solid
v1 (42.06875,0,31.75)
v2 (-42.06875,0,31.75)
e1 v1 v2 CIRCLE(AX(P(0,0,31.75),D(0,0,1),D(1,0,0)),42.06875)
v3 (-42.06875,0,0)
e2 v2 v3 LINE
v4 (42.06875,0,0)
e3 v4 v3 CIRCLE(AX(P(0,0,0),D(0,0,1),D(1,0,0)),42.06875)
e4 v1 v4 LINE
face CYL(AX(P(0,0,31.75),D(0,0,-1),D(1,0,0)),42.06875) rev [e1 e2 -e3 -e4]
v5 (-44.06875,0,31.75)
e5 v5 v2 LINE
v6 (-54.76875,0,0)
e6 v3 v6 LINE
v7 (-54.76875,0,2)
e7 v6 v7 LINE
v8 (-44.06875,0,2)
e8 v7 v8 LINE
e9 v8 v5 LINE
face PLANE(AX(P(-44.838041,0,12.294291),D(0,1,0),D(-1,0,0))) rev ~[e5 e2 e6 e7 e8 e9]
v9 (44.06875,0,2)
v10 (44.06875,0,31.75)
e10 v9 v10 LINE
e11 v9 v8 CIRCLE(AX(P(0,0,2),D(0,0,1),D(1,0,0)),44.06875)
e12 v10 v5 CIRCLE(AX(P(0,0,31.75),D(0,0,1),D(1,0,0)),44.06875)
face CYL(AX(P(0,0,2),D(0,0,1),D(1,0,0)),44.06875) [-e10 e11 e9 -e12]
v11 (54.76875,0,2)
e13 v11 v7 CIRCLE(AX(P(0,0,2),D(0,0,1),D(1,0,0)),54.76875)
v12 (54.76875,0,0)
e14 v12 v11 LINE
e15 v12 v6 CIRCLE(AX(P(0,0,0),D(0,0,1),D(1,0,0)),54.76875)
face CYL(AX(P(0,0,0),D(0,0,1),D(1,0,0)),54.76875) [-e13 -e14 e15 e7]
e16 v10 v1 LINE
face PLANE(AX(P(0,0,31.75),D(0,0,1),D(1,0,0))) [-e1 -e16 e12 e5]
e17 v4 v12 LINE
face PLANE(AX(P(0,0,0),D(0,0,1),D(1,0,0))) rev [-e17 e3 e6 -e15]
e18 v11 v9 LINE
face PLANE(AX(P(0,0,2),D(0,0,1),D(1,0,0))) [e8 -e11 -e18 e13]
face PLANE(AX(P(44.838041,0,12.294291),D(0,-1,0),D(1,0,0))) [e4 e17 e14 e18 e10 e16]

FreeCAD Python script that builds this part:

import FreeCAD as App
import Part
import Sketcher


def add_polygon(sketch, points):
    """Adds a closed chain of lines whose ends are joined by coincident constraints."""
    first, n = sketch.GeometryCount, len(points)
    for a, b in zip(points, points[1:] + points[:1]):
        sketch.addGeometry(Part.LineSegment(App.Vector(*a, 0), App.Vector(*b, 0)), False)
    for i in range(n):
        sketch.addConstraint(Sketcher.Constraint("Coincident", first + i, 2, first + (i + 1) % n, 1))

doc = App.newDocument("Part")
body = doc.addObject("PartDesign::Body", "Body")

sketch1 = body.newObject("Sketcher::SketchObject", "Sketch")
sketch1.AttachmentSupport = (doc.getObject("XZ_Plane"), [""])
sketch1.MapMode = "FlatFace"
add_polygon(sketch1, [(44.1, 2), (44.1, 31.8), (42.1, 31.8), (42.1, 0), (54.8, 0), (54.8, 2)])
sketch1.addConstraint([
    Sketcher.Constraint("Vertical", 0),
    Sketcher.Constraint("Horizontal", 1),
    Sketcher.Constraint("Vertical", 2),
    Sketcher.Constraint("Horizontal", 3),
    Sketcher.Constraint("Vertical", 4),
    Sketcher.Constraint("Horizontal", 5),
    Sketcher.Constraint("PointOnObject", 2, 2, -1),
    Sketcher.Constraint("Equal", 1, 4),
    Sketcher.Constraint("DistanceX", 1, 2, 1, 1, 2.0),
    Sketcher.Constraint("DistanceX", 3, 1, 3, 2, 12.7),
    Sketcher.Constraint("DistanceY", 0, 1, 0, 2, 29.75),
    Sketcher.Constraint("DistanceX", -1, 1, 0, 2, 44.06875),
])
revolution = body.newObject("PartDesign::Revolution", "Revolution")
revolution.Profile = sketch1
revolution.ReferenceAxis = (sketch1, ["V_Axis"])
revolution.Angle = 180

doc.recompute()
